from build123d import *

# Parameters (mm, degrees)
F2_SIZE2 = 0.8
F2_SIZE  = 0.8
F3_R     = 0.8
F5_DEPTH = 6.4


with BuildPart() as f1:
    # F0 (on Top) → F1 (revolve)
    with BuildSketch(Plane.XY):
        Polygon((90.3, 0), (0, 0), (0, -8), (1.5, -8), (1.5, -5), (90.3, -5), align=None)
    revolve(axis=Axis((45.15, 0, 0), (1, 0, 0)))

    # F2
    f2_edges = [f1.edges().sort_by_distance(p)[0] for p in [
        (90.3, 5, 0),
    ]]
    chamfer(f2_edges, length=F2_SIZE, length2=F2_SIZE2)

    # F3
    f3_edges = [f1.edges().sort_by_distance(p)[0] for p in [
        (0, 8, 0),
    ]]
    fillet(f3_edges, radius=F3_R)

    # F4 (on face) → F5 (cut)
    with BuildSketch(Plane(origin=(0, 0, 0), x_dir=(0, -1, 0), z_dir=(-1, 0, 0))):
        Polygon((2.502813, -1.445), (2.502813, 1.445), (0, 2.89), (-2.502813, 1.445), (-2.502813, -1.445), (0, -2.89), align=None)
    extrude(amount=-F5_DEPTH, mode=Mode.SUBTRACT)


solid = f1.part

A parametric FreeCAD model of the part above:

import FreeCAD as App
import Part
import Sketcher
Q = App.Units.Quantity


def edges_at(feature, points):
    """Names of the edges that pass closest to the given points."""
    edges = feature.Shape.Edges
    near = lambda p: min(range(len(edges)), key=lambda i: edges[i].distToShape(Part.Vertex(*p))[0])
    return sorted({f"Edge{near(p) + 1}" for p in points})


def add_polygon(sketch, points):
    """Adds a closed chain of lines whose ends are joined by coincident constraints."""
    first, n = sketch.GeometryCount, len(points)
    for a, b in zip(points, points[1:] + points[:1]):
        sketch.addGeometry(Part.LineSegment(App.Vector(*a, 0), App.Vector(*b, 0)), False)
    for i in range(n):
        sketch.addConstraint(Sketcher.Constraint("Coincident", first + i, 2, first + (i + 1) % n, 1))

doc = App.newDocument("Part")
params = doc.addObject("Spreadsheet::Sheet", "Params")
for row, (alias, value) in enumerate([
    ("sketch1_height", "8 mm"),
    ("sketch1_height2", "3 mm"),
    ("sketch1_width", "90.3 mm"),
    ("sketch1_width2", "1.5 mm"),
    ("revolution_angle", "360 deg"),
    ("chamfer_size", "0.8 mm"),
    ("chamfer_size2", "0.8 mm"),
    ("fillet_radius", "0.8 mm"),
    ("sketch2_height", "2.89 mm"),
    ("sketch2_length", "2.89 mm"),
    ("pocket1_length", "6.4 mm"),
], start=1):
    params.set(f"A{row}", alias)
    params.set(f"B{row}", "=" + value)
    params.setAlias(f"B{row}", alias)

body = doc.addObject("PartDesign::Body", "Body")

# Sketch on XY plane
sketch1 = doc.addObject("Sketcher::SketchObject", "Sketch")
body.addObject(sketch1)
sketch1.AttachmentSupport = (doc.XY_Plane, [""])
sketch1.MapMode = "FlatFace"
add_polygon(sketch1, [(90.3, 0), (0, 0), (0, -8), (1.5, -8), (1.5, -5), (90.3, -5)])  # lines 0-5
sketch1.addConstraint(Sketcher.Constraint("Horizontal", 0))
sketch1.addConstraint(Sketcher.Constraint("Vertical", 1))
sketch1.addConstraint(Sketcher.Constraint("Horizontal", 2))
sketch1.addConstraint(Sketcher.Constraint("Vertical", 3))
sketch1.addConstraint(Sketcher.Constraint("Horizontal", 4))
sketch1.addConstraint(Sketcher.Constraint("Vertical", 5))
sketch1.addConstraint(Sketcher.Constraint("Coincident", 0, 2, -1, 1))
sketch1.addConstraint(Sketcher.Constraint("DistanceY", 1, 2, 1, 1, Q("8 mm")))
sketch1.addConstraint(Sketcher.Constraint("DistanceY", 3, 1, 3, 2, Q("3 mm")))
sketch1.addConstraint(Sketcher.Constraint("DistanceX", 0, 2, 0, 1, Q("90.3 mm")))
sketch1.addConstraint(Sketcher.Constraint("DistanceX", 2, 1, 2, 2, Q("1.5 mm")))
sketch1.setExpression("Constraints[13]", "Params.sketch1_height")
sketch1.setExpression("Constraints[14]", "Params.sketch1_height2")
sketch1.setExpression("Constraints[15]", "Params.sketch1_width")
sketch1.setExpression("Constraints[16]", "Params.sketch1_width2")
revolution = doc.addObject("PartDesign::Revolution", "Revolution")
body.addObject(revolution)
revolution.Profile = sketch1
revolution.ReferenceAxis = (sketch1, ["H_Axis"])
revolution.setExpression("Angle", "Params.revolution_angle")
doc.recompute()

chamfer = doc.addObject("PartDesign::Chamfer", "Chamfer")
body.addObject(chamfer)
chamfer.Base = (revolution, edges_at(revolution, [(90.3, 5, 0)]))
chamfer.ChamferType = "Two distances"
chamfer.setExpression("Size", "Params.chamfer_size")
chamfer.setExpression("Size2", "Params.chamfer_size2")
doc.recompute()

fillet = doc.addObject("PartDesign::Fillet", "Fillet")
body.addObject(fillet)
fillet.Base = (chamfer, edges_at(chamfer, [(0, 8, 0)]))
fillet.setExpression("Radius", "Params.fillet_radius")

# Sketch on YZ plane
sketch2 = doc.addObject("Sketcher::SketchObject", "Sketch001")
body.addObject(sketch2)
sketch2.AttachmentSupport = (doc.YZ_Plane, [""])
sketch2.MapMode = "FlatFace"
add_polygon(sketch2, [(-2.5, -1.4), (-2.5, 1.4), (0, 2.9), (2.5, 1.4), (2.5, -1.4), (0, -2.9)])  # lines 0-5
sketch2.addConstraint(Sketcher.Constraint("Vertical", 0))
sketch2.addConstraint(Sketcher.Constraint("Vertical", 3))
sketch2.addConstraint(Sketcher.Constraint("Symmetric", 0, 2, 3, 2, -1, 1))
sketch2.addConstraint(Sketcher.Constraint("Symmetric", 1, 2, 4, 2, -1, 1))
sketch2.addConstraint(Sketcher.Constraint("PointOnObject", 1, 2, -2))
sketch2.addConstraint(Sketcher.Constraint("Parallel", 2, 5))
sketch2.addConstraint(Sketcher.Constraint("Horizontal", 0, 2, 2, 2))
sketch2.addConstraint(Sketcher.Constraint("Angle", 1, Q("30.000004 deg")))
sketch2.addConstraint(Sketcher.Constraint("DistanceY", 0, 1, 0, 2, Q("2.89 mm")))
sketch2.addConstraint(Sketcher.Constraint("Distance", 1, Q("2.89 mm")))
sketch2.setExpression("Constraints[14]", "Params.sketch2_height")
sketch2.setExpression("Constraints[15]", "Params.sketch2_length")
pocket1 = doc.addObject("PartDesign::Pocket", "Pocket")
body.addObject(pocket1)
pocket1.Profile = sketch2
pocket1.setExpression("Length", "Params.pocket1_length")
pocket1.Reversed = True

doc.recompute()
